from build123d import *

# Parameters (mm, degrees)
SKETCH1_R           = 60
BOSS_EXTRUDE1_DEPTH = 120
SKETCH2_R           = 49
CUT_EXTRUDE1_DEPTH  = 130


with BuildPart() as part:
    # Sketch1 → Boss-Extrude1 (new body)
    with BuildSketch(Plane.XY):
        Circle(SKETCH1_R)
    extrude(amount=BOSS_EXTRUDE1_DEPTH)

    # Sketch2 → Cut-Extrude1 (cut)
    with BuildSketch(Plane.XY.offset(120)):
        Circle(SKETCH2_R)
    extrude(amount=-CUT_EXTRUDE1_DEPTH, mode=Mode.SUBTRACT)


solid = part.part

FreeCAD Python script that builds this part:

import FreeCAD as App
import Part
import Sketcher

V = App.Vector

doc = App.newDocument("Part")
body = doc.addObject("PartDesign::Body", "Body")

# Sketch on XY plane
sketch1 = doc.addObject("Sketcher::SketchObject", "Sketch")
body.addObject(sketch1)
sketch1.AttachmentSupport = (doc.XY_Plane, [""])
sketch1.MapMode = "FlatFace"
sketch1.addGeometry(Part.Circle(V(0, 0, 0), V(0, 0, 1), 60), False)
sketch1.addConstraint(Sketcher.Constraint("Coincident", 0, 3, -1, 1))
sketch1.addConstraint(Sketcher.Constraint("Diameter", 0, 120.0))
pad1 = doc.addObject("PartDesign::Pad", "Pad")
body.addObject(pad1)
pad1.Profile = sketch1
pad1.Length = 120

# Sketch on XY plane
sketch2 = doc.addObject("Sketcher::SketchObject", "Sketch001")
body.addObject(sketch2)
sketch2.AttachmentSupport = (doc.XY_Plane, [""])
sketch2.MapMode = "FlatFace"
sketch2.AttachmentOffset = App.Placement(V(0, 0, 120), App.Rotation())
sketch2.addGeometry(Part.Circle(V(0, 0, 0), V(0, 0, 1), 49), False)
sketch2.addConstraint(Sketcher.Constraint("Coincident", 0, 3, -1, 1))
sketch2.addConstraint(Sketcher.Constraint("Diameter", 0, 98.0))
pocket1 = doc.addObject("PartDesign::Pocket", "Pocket")
body.addObject(pocket1)
pocket1.Profile = sketch2
pocket1.Length = 130

doc.recompute()
